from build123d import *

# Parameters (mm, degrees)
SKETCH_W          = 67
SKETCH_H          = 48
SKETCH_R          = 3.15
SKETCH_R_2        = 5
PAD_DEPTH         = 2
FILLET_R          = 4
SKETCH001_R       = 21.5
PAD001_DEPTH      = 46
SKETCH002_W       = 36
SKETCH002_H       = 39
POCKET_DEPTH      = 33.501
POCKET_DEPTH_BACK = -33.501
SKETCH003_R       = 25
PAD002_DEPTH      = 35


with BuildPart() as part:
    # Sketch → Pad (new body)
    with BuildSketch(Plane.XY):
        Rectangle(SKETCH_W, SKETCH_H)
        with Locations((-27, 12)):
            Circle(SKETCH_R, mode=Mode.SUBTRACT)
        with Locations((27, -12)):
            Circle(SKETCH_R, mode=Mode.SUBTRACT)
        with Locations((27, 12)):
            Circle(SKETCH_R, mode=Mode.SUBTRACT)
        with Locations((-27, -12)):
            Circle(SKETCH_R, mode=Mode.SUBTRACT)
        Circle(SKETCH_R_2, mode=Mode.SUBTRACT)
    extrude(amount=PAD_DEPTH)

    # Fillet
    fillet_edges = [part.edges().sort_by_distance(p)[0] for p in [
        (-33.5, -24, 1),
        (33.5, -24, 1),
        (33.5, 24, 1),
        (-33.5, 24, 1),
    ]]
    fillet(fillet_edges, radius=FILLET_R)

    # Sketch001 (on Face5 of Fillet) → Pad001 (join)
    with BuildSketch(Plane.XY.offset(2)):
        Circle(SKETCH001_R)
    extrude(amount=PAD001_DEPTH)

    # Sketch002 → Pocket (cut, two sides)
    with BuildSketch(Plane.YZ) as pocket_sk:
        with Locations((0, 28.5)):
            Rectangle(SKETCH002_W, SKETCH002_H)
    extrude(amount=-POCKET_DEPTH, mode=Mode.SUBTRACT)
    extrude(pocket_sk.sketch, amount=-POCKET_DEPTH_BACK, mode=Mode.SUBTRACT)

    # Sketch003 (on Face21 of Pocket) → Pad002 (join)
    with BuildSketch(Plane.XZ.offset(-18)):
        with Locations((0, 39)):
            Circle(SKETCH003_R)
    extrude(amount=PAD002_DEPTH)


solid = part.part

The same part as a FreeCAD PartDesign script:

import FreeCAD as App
import Part
import Sketcher


def edges_at(feature, points):
    """Names of the edges that pass closest to the given points."""
    edges = feature.Shape.Edges
    near = lambda p: min(range(len(edges)), key=lambda i: edges[i].distToShape(Part.Vertex(*p))[0])
    return sorted({f"Edge{near(p) + 1}" for p in points})

doc = App.newDocument("Part")
body = doc.addObject("PartDesign::Body", "Body")

# Sketch on XY plane
sketch1 = body.newObject("Sketcher::SketchObject", "Sketch")
sketch1.AttachmentSupport = (doc.getObject("XY_Plane"), [""])
sketch1.MapMode = "FlatFace"
sketch1.addGeometry(Part.LineSegment(App.Vector(-33.5, 24, 0), App.Vector(-33.5, -24, 0)), False)
sketch1.addGeometry(Part.LineSegment(App.Vector(-33.5, -24, 0), App.Vector(33.5, -24, 0)), False)
sketch1.addGeometry(Part.LineSegment(App.Vector(33.5, -24, 0), App.Vector(33.5, 24, 0)), False)
sketch1.addGeometry(Part.LineSegment(App.Vector(33.5, 24, 0), App.Vector(-33.5, 24, 0)), False)
sketch1.addGeometry(Part.Circle(App.Vector(-27, -12, 0), App.Vector(0, 0, 1), 3.1), False)
sketch1.addGeometry(Part.Circle(App.Vector(27, -12, 0), App.Vector(0, 0, 1), 3.1), False)
sketch1.addGeometry(Part.Circle(App.Vector(-27, 12, 0), App.Vector(0, 0, 1), 3.1), False)
sketch1.addGeometry(Part.Circle(App.Vector(0, 0, 0), App.Vector(0, 0, 1), 5), False)
sketch1.addGeometry(Part.Circle(App.Vector(27, 12, 0), App.Vector(0, 0, 1), 3.1), False)
sketch1.addConstraint(Sketcher.Constraint("Coincident", 0, 2, 1, 1))
sketch1.addConstraint(Sketcher.Constraint("Coincident", 1, 2, 2, 1))
sketch1.addConstraint(Sketcher.Constraint("Coincident", 2, 2, 3, 1))
sketch1.addConstraint(Sketcher.Constraint("Coincident", 3, 2, 0, 1))
sketch1.addConstraint(Sketcher.Constraint("Vertical", 0))
sketch1.addConstraint(Sketcher.Constraint("Horizontal", 1))
sketch1.addConstraint(Sketcher.Constraint("Vertical", 2))
sketch1.addConstraint(Sketcher.Constraint("Horizontal", 3))
sketch1.addConstraint(Sketcher.Constraint("Coincident", 7, 3, -1, 1))
sketch1.addConstraint(Sketcher.Constraint("Equal", 4, 5))
sketch1.addConstraint(Sketcher.Constraint("Equal", 5, 6))
sketch1.addConstraint(Sketcher.Constraint("Equal", 6, 8))
sketch1.addConstraint(Sketcher.Constraint("Symmetric", 5, 3, 6, 3, -1, 1))
sketch1.addConstraint(Sketcher.Constraint("Symmetric", 4, 3, 8, 3, -1, 1))
sketch1.addConstraint(Sketcher.Constraint("Symmetric", 0, 2, 2, 2, -1, 1))
sketch1.addConstraint(Sketcher.Constraint("Symmetric", 4, 3, 5, 3, -2))
sketch1.addConstraint(Sketcher.Constraint("Diameter", 7, 10.0))
sketch1.addConstraint(Sketcher.Constraint("Diameter", 4, 6.3))
sketch1.addConstraint(Sketcher.Constraint("DistanceX", 1, 1, 1, 2, 67.0))
sketch1.addConstraint(Sketcher.Constraint("DistanceY", 0, 2, 0, 1, 48.0))
sketch1.addConstraint(Sketcher.Constraint("DistanceX", 4, 3, -1, 1, 27.0))
sketch1.addConstraint(Sketcher.Constraint("DistanceY", 4, 3, -1, 1, 12.0))
pad1 = body.newObject("PartDesign::Pad", "Pad")
pad1.Profile = sketch1
pad1.Length = 2
doc.recompute()

fillet = body.newObject("PartDesign::Fillet", "Fillet")
fillet.Base = (pad1, edges_at(pad1, [
    (-33.5, -24, 1),
    (33.5, -24, 1),
    (33.5, 24, 1),
    (-33.5, 24, 1),
]))
fillet.Radius = 4

# Sketch on XY plane
sketch2 = body.newObject("Sketcher::SketchObject", "Sketch001")
sketch2.AttachmentSupport = (doc.getObject("XY_Plane"), [""])
sketch2.MapMode = "FlatFace"
sketch2.AttachmentOffset = App.Placement(App.Vector(0, 0, 2), App.Rotation())
sketch2.addGeometry(Part.Circle(App.Vector(0, 0, 0), App.Vector(0, 0, 1), 22), False)
sketch2.addConstraint(Sketcher.Constraint("Coincident", 0, 3, -1, 1))
sketch2.addConstraint(Sketcher.Constraint("Diameter", 0, 43.0))
pad2 = body.newObject("PartDesign::Pad", "Pad001")
pad2.Profile = sketch2
pad2.Length = 46

# Sketch on YZ plane
sketch3 = body.newObject("Sketcher::SketchObject", "Sketch002")
sketch3.AttachmentSupport = (doc.getObject("YZ_Plane"), [""])
sketch3.MapMode = "FlatFace"
sketch3.addGeometry(Part.LineSegment(App.Vector(-18, 48, 0), App.Vector(-18, 9, 0)), False)
sketch3.addGeometry(Part.LineSegment(App.Vector(-18, 9, 0), App.Vector(18, 9, 0)), False)
sketch3.addGeometry(Part.LineSegment(App.Vector(18, 9, 0), App.Vector(18, 48, 0)), False)
sketch3.addGeometry(Part.LineSegment(App.Vector(18, 48, 0), App.Vector(-18, 48, 0)), False)
sketch3.addConstraint(Sketcher.Constraint("Coincident", 0, 2, 1, 1))
sketch3.addConstraint(Sketcher.Constraint("Coincident", 1, 2, 2, 1))
sketch3.addConstraint(Sketcher.Constraint("Coincident", 2, 2, 3, 1))
sketch3.addConstraint(Sketcher.Constraint("Coincident", 3, 2, 0, 1))
sketch3.addConstraint(Sketcher.Constraint("Vertical", 0))
sketch3.addConstraint(Sketcher.Constraint("Horizontal", 1))
sketch3.addConstraint(Sketcher.Constraint("Vertical", 2))
sketch3.addConstraint(Sketcher.Constraint("Horizontal", 3))
sketch3.addConstraint(Sketcher.Constraint("DistanceX", 1, 1, 1, 2, 36.0))
sketch3.addConstraint(Sketcher.Constraint("DistanceY", 0, 2, 0, 1, 39.0))
sketch3.addConstraint(Sketcher.Constraint("DistanceX", 0, 2, -1, 1, 18.0))
sketch3.addConstraint(Sketcher.Constraint("DistanceY", -1, 1, 0, 2, 9.0))
pocket1 = body.newObject("PartDesign::Pocket", "Pocket")
pocket1.Profile = sketch3
pocket1.Type = "ThroughAll"
pocket1.Midplane = True

# Sketch on XZ plane
sketch4 = body.newObject("Sketcher::SketchObject", "Sketch003")
sketch4.AttachmentSupport = (doc.getObject("XZ_Plane"), [""])
sketch4.MapMode = "FlatFace"
sketch4.AttachmentOffset = App.Placement(App.Vector(0, 0, -18), App.Rotation())
sketch4.addGeometry(Part.Circle(App.Vector(0, 39, 0), App.Vector(0, 0, 1), 25), False)
sketch4.addConstraint(Sketcher.Constraint("PointOnObject", 0, 3, -2))
sketch4.addConstraint(Sketcher.Constraint("Diameter", 0, 50.0))
sketch4.addConstraint(Sketcher.Constraint("DistanceY", -1, 1, 0, 3, 39.0))
pad3 = body.newObject("PartDesign::Pad", "Pad002")
pad3.Profile = sketch4
pad3.Length = 35

doc.recompute()
